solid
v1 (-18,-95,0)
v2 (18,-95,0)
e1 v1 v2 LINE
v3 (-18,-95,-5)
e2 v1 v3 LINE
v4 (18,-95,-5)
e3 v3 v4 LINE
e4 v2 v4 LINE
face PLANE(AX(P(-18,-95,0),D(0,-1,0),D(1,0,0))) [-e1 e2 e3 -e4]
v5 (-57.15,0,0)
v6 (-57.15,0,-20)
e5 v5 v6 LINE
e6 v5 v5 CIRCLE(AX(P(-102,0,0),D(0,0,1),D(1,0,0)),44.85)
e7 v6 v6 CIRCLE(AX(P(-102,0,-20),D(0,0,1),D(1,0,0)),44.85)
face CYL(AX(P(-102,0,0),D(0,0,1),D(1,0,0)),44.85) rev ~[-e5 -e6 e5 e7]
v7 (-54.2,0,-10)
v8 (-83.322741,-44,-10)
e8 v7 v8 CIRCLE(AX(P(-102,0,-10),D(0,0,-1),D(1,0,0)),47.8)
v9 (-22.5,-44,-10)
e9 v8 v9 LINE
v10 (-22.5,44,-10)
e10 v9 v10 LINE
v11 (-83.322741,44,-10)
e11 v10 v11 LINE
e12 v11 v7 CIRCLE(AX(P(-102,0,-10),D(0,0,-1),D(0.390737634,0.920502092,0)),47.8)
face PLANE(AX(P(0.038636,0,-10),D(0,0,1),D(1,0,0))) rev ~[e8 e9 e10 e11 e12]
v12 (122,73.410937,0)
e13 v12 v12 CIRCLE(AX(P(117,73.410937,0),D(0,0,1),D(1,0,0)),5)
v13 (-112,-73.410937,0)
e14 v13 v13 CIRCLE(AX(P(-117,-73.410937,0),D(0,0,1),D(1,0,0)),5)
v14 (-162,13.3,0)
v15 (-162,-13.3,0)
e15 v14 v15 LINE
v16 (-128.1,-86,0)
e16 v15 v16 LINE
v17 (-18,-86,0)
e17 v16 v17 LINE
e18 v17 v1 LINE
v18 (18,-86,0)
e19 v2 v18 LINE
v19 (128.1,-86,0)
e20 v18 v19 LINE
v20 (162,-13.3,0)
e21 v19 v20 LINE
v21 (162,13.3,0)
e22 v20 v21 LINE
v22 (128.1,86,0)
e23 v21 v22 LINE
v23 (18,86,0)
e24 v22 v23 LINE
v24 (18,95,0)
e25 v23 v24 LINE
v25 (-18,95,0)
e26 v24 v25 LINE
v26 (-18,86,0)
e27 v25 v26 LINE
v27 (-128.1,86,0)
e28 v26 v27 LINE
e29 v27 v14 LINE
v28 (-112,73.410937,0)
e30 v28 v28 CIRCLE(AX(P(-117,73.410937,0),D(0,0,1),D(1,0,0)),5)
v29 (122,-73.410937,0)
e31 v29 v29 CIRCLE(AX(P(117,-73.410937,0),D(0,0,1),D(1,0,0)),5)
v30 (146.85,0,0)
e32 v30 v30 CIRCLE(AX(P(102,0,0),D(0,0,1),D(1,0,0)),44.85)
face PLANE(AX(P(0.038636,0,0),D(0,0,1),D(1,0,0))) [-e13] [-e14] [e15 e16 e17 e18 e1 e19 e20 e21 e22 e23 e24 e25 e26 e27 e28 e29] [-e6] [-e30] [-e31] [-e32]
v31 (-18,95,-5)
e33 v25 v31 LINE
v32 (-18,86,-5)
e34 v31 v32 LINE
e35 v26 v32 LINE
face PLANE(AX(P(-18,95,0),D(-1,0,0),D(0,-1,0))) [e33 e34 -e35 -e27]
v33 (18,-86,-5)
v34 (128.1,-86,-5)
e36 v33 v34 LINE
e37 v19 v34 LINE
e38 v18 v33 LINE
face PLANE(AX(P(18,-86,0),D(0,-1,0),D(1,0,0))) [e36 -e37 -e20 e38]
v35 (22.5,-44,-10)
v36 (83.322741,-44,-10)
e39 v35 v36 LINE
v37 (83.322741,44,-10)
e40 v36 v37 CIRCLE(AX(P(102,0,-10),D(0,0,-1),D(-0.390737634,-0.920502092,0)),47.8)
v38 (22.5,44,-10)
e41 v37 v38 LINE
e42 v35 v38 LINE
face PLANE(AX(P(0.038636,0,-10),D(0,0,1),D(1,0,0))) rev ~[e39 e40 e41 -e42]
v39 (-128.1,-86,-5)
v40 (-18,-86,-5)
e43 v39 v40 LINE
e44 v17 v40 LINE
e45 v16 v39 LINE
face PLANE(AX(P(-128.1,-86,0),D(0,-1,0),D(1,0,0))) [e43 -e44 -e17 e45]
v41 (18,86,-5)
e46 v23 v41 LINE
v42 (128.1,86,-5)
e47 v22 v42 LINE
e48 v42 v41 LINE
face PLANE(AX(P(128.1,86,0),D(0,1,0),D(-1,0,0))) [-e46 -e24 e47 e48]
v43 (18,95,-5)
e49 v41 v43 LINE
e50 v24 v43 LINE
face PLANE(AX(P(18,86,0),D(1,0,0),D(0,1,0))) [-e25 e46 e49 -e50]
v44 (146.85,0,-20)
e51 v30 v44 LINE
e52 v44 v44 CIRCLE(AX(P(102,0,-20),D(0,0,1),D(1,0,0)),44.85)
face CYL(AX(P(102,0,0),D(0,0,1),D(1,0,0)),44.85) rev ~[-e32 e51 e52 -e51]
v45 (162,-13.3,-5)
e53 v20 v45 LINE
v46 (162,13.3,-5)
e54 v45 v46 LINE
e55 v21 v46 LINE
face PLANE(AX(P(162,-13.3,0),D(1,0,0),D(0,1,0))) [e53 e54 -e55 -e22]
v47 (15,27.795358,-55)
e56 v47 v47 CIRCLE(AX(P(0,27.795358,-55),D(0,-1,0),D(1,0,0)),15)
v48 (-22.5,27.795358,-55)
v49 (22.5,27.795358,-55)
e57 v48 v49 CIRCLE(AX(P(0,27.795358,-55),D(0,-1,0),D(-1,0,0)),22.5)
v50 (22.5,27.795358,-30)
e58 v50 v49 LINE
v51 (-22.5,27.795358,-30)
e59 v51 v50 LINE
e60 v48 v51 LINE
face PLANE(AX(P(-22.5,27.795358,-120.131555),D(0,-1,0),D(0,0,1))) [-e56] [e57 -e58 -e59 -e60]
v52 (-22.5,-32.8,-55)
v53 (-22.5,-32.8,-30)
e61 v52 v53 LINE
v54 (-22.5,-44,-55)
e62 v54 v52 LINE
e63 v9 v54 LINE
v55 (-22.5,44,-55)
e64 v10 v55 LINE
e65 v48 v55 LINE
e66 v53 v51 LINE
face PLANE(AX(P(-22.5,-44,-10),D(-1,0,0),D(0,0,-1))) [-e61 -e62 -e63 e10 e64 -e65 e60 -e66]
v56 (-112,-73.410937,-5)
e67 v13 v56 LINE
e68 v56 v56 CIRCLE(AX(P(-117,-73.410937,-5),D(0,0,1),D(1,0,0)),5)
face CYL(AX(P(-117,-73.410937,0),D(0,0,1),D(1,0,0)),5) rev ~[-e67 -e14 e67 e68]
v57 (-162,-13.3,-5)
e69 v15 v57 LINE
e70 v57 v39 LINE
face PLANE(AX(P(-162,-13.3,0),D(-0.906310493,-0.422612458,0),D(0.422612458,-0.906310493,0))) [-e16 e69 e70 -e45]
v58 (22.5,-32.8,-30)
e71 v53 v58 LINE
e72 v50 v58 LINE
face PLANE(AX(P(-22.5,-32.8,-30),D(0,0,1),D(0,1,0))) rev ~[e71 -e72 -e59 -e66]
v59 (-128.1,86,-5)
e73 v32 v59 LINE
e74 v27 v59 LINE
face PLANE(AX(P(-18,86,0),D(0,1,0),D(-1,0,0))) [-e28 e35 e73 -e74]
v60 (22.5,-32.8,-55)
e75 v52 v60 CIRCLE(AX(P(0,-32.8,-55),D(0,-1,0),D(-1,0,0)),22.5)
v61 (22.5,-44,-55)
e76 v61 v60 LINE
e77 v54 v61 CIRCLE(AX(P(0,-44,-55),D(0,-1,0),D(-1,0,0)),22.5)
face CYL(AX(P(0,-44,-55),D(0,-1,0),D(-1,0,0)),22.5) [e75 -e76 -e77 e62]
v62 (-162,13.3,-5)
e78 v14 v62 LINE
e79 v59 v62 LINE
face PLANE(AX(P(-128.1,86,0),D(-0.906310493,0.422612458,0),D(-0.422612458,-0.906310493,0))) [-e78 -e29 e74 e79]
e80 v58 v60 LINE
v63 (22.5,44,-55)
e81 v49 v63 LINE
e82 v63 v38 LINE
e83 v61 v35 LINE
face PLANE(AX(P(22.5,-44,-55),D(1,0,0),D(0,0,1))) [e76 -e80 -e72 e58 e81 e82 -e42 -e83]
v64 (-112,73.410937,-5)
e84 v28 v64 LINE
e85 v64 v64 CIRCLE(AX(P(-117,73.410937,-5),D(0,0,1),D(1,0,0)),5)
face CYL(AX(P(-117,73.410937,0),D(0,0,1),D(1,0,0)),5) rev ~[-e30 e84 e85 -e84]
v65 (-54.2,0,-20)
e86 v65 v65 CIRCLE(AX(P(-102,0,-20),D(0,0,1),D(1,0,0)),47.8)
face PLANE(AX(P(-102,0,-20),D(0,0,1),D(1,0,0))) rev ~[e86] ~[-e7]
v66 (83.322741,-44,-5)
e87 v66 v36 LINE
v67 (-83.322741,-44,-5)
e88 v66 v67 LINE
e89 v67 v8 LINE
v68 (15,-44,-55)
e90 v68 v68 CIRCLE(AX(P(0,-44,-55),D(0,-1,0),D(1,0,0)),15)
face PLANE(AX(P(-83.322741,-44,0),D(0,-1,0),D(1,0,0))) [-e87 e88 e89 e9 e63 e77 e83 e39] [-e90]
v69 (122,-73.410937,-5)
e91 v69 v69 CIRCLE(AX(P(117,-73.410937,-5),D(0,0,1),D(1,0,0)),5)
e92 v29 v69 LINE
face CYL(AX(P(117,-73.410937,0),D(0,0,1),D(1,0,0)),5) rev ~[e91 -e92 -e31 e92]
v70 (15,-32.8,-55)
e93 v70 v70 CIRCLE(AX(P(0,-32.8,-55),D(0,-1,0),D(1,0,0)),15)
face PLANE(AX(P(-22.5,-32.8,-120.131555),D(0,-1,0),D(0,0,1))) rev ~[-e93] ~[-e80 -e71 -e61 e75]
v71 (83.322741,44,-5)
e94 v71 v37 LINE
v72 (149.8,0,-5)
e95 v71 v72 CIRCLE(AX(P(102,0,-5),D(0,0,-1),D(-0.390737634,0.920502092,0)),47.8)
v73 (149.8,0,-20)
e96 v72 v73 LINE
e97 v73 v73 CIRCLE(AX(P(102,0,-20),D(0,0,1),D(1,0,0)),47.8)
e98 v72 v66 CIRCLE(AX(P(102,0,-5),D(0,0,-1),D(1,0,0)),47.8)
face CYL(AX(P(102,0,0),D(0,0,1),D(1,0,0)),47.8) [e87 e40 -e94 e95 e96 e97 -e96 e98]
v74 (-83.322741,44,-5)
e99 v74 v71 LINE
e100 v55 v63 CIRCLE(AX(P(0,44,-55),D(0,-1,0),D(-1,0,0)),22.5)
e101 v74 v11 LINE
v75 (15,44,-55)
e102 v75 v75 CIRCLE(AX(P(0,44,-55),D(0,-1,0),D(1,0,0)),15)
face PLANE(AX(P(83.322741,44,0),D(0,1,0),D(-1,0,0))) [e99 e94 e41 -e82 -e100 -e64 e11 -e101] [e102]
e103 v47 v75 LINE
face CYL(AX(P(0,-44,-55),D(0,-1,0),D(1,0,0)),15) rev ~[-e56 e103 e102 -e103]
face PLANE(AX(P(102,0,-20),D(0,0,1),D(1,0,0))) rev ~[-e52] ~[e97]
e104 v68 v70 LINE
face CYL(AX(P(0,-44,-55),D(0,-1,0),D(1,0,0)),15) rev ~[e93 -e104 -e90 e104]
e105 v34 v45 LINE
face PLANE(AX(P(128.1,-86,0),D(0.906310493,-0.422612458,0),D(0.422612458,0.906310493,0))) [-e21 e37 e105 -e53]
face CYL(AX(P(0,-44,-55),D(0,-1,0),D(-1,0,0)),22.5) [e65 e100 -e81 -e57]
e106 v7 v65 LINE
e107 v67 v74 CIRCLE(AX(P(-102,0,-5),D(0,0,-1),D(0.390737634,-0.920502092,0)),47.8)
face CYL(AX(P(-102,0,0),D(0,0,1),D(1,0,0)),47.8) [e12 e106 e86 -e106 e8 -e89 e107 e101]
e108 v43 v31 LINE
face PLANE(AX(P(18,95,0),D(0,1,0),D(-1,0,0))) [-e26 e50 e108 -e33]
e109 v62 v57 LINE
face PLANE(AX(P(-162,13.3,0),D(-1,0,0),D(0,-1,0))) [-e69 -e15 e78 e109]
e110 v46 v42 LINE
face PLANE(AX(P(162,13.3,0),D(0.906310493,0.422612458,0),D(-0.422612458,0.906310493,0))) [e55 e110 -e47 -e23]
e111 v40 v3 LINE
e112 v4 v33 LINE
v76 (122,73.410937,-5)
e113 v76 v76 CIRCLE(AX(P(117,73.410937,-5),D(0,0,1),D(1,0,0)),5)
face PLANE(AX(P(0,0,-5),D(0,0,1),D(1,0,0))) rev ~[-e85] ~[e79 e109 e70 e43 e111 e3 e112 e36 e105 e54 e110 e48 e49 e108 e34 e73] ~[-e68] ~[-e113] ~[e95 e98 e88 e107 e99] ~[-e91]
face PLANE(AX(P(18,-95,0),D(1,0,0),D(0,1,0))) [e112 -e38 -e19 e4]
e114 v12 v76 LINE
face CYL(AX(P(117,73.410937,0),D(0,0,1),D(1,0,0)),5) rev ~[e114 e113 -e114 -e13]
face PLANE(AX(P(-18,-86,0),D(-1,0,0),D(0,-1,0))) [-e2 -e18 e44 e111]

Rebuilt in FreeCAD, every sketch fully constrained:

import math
import FreeCAD as App
import Part
import Sketcher

V = App.Vector
Q = App.Units.Quantity


def add_polygon(sketch, points):
    """Adds a closed chain of lines whose ends are joined by coincident constraints."""
    first, n = sketch.GeometryCount, len(points)
    for a, b in zip(points, points[1:] + points[:1]):
        sketch.addGeometry(Part.LineSegment(App.Vector(*a, 0), App.Vector(*b, 0)), False)
    for i in range(n):
        sketch.addConstraint(Sketcher.Constraint("Coincident", first + i, 2, first + (i + 1) % n, 1))

doc = App.newDocument("Part")
body = doc.addObject("PartDesign::Body", "Body")

sketch1 = body.newObject("Sketcher::SketchObject", "Sketch")
sketch1.AttachmentSupport = (doc.getObject("XY_Plane"), [""])
sketch1.MapMode = "FlatFace"
add_polygon(sketch1, [(-18, 86), (-128, 86), (-162, 13), (-162, -13), (-128, -86), (-18, -86), (-18, -95), (18, -95), (18, -86), (128, -86), (162, -13), (162, 13), (128, 86), (18, 86), (18, 95), (-18, 95)])
sketch1.addGeometry(Part.Circle(V(-117, -73, 0), V(0, 0, 1), 5), False)
sketch1.addGeometry(Part.Circle(V(117, -73, 0), V(0, 0, 1), 5), False)
sketch1.addGeometry(Part.Circle(V(-117, 73, 0), V(0, 0, 1), 5), False)
sketch1.addGeometry(Part.LineSegment(V(83, -44, 0), V(-83, -44, 0)), False)
sketch1.addGeometry(Part.ArcOfCircle(Part.Circle(V(-102, 0, 0), V(0, 0, 1), 48), math.radians(67), math.radians(293)), False)
sketch1.addGeometry(Part.LineSegment(V(-83, 44, 0), V(83, 44, 0)), False)
sketch1.addGeometry(Part.ArcOfCircle(Part.Circle(V(102, 0, 0), V(0, 0, 1), 48), math.radians(0), math.radians(113)), False)
sketch1.addGeometry(Part.ArcOfCircle(Part.Circle(V(102, 0, 0), V(0, 0, 1), 48), math.radians(-113), math.radians(0)), False)
sketch1.addGeometry(Part.Circle(V(117, 73, 0), V(0, 0, 1), 5), False)
sketch1.addConstraint(Sketcher.Constraint("Coincident", 19, 2, 20, 2))
sketch1.addConstraint(Sketcher.Constraint("Coincident", 20, 1, 21, 1))
sketch1.addConstraint(Sketcher.Constraint("Coincident", 21, 2, 22, 2))
sketch1.addConstraint(Sketcher.Constraint("Tangent", 22, 1, 23, 2))
sketch1.addConstraint(Sketcher.Constraint("Coincident", 23, 1, 19, 1))
sketch1.addConstraint(Sketcher.Constraint("Horizontal", 0))
sketch1.addConstraint(Sketcher.Constraint("Vertical", 2))
sketch1.addConstraint(Sketcher.Constraint("Horizontal", 4))
sketch1.addConstraint(Sketcher.Constraint("Vertical", 5))
sketch1.addConstraint(Sketcher.Constraint("Horizontal", 6))
sketch1.addConstraint(Sketcher.Constraint("Vertical", 7))
sketch1.addConstraint(Sketcher.Constraint("Horizontal", 8))
sketch1.addConstraint(Sketcher.Constraint("Vertical", 10))
sketch1.addConstraint(Sketcher.Constraint("Horizontal", 12))
sketch1.addConstraint(Sketcher.Constraint("Vertical", 13))
sketch1.addConstraint(Sketcher.Constraint("Horizontal", 14))
sketch1.addConstraint(Sketcher.Constraint("Vertical", 15))
sketch1.addConstraint(Sketcher.Constraint("Horizontal", 19))
sketch1.addConstraint(Sketcher.Constraint("Horizontal", 21))
sketch1.addConstraint(Sketcher.Constraint("Equal", 16, 17))
sketch1.addConstraint(Sketcher.Constraint("Equal", 17, 18))
sketch1.addConstraint(Sketcher.Constraint("Equal", 20, 22))
sketch1.addConstraint(Sketcher.Constraint("Equal", 22, 23))
sketch1.addConstraint(Sketcher.Constraint("Equal", 18, 24))
sketch1.addConstraint(Sketcher.Constraint("Symmetric", 17, 3, 18, 3, -1, 1))
sketch1.addConstraint(Sketcher.Constraint("Symmetric", 20, 3, 22, 3, -1, 1))
sketch1.addConstraint(Sketcher.Constraint("Symmetric", 16, 3, 24, 3, -1, 1))
sketch1.addConstraint(Sketcher.Constraint("Symmetric", 0, 2, 8, 2, -1, 1))
sketch1.addConstraint(Sketcher.Constraint("Symmetric", 1, 2, 9, 2, -1, 1))
sketch1.addConstraint(Sketcher.Constraint("Symmetric", 3, 2, 11, 2, -1, 1))
sketch1.addConstraint(Sketcher.Constraint("Symmetric", 5, 2, 13, 2, -1, 1))
sketch1.addConstraint(Sketcher.Constraint("Symmetric", 16, 3, 17, 3, -2))
sketch1.addConstraint(Sketcher.Constraint("Symmetric", 4, 2, 7, 2, -2))
sketch1.addConstraint(Sketcher.Constraint("Symmetric", 19, 2, 20, 1, -1))
sketch1.addConstraint(Sketcher.Constraint("PointOnObject", 22, 1, -1))
sketch1.addConstraint(Sketcher.Constraint("Parallel", 3, 11))
sketch1.addConstraint(Sketcher.Constraint("Horizontal", 2, 2, 9, 2))
sketch1.addConstraint(Sketcher.Constraint("Vertical", 0, 2, 3, 2))
sketch1.addConstraint(Sketcher.Constraint("Vertical", 5, 2, 14, 2))
sketch1.addConstraint(Sketcher.Constraint("Diameter", 16, Q("10 mm")))
sketch1.addConstraint(Sketcher.Constraint("Radius", 20, Q("47.8 mm")))
sketch1.addConstraint(Sketcher.Constraint("DistanceX", 6, 1, 6, 2, Q("36 mm")))
sketch1.addConstraint(Sketcher.Constraint("DistanceY", 5, 2, 5, 1, Q("9 mm")))
sketch1.addConstraint(Sketcher.Constraint("DistanceX", 0, 2, 0, 1, Q("110.1 mm")))
sketch1.addConstraint(Sketcher.Constraint("DistanceY", 2, 2, 2, 1, Q("26.6 mm")))
sketch1.addConstraint(Sketcher.Constraint("DistanceX", 16, 3, -1, 1, Q("117 mm")))
sketch1.addConstraint(Sketcher.Constraint("DistanceX", 20, 3, -1, 1, Q("102 mm")))
sketch1.addConstraint(Sketcher.Constraint("DistanceY", -1, 1, 0, 2, Q("86 mm")))
sketch1.addConstraint(Sketcher.Constraint("DistanceX", 1, 2, -1, 1, Q("162 mm")))
sketch1.addConstraint(Sketcher.Constraint("DistanceY", 19, 2, -1, 1, Q("44 mm")))
sketch1.addConstraint(Sketcher.Constraint("DistanceY", 16, 3, -1, 1, Q("73.410937 mm")))
pad1 = body.newObject("PartDesign::Pad", "Pad")
pad1.Profile = sketch1
pad1.Length = 5
pad1.Reversed = True

sketch2 = body.newObject("Sketcher::SketchObject", "Sketch001")
sketch2.AttachmentSupport = (doc.getObject("XY_Plane"), [""])
sketch2.MapMode = "FlatFace"
sketch2.addGeometry(Part.LineSegment(V(83, 44, 0), V(-83, 44, 0)), False)
sketch2.addGeometry(Part.ArcOfCircle(Part.Circle(V(-102, 0, 0), V(0, 0, 1), 48), math.radians(0), math.radians(67)), False)
sketch2.addGeometry(Part.ArcOfCircle(Part.Circle(V(-102, 0, 0), V(0, 0, 1), 48), math.radians(-67), math.radians(0)), False)
sketch2.addGeometry(Part.LineSegment(V(-83, -44, 0), V(83, -44, 0)), False)
sketch2.addGeometry(Part.ArcOfCircle(Part.Circle(V(102, 0, 0), V(0, 0, 1), 48), math.radians(113), math.radians(247)), False)
sketch2.addConstraint(Sketcher.Constraint("Coincident", 0, 2, 1, 2))
sketch2.addConstraint(Sketcher.Constraint("Tangent", 1, 1, 2, 2))
sketch2.addConstraint(Sketcher.Constraint("Coincident", 2, 1, 3, 1))
sketch2.addConstraint(Sketcher.Constraint("Coincident", 3, 2, 4, 2))
sketch2.addConstraint(Sketcher.Constraint("Coincident", 4, 1, 0, 1))
sketch2.addConstraint(Sketcher.Constraint("Horizontal", 0))
sketch2.addConstraint(Sketcher.Constraint("Horizontal", 3))
sketch2.addConstraint(Sketcher.Constraint("Equal", 1, 2))
sketch2.addConstraint(Sketcher.Constraint("Equal", 2, 4))
sketch2.addConstraint(Sketcher.Constraint("Symmetric", 1, 3, 4, 3, -1, 1))
sketch2.addConstraint(Sketcher.Constraint("Symmetric", 0, 2, 2, 1, -1))
sketch2.addConstraint(Sketcher.Constraint("PointOnObject", 1, 1, -1))
sketch2.addConstraint(Sketcher.Constraint("Radius", 1, Q("47.8 mm")))
sketch2.addConstraint(Sketcher.Constraint("DistanceX", 1, 3, -1, 1, Q("102 mm")))
sketch2.addConstraint(Sketcher.Constraint("DistanceY", -1, 1, 0, 2, Q("44 mm")))
pad2 = body.newObject("PartDesign::Pad", "Pad001")
pad2.Profile = sketch2
pad2.Length = 10
pad2.Reversed = True

sketch3 = body.newObject("Sketcher::SketchObject", "Sketch002")
sketch3.AttachmentSupport = (doc.getObject("XY_Plane"), [""])
sketch3.MapMode = "FlatFace"
sketch3.addGeometry(Part.Circle(V(102, 0, 0), V(0, 0, 1), 48), False)
sketch3.addGeometry(Part.Circle(V(102, 0, 0), V(0, 0, 1), 45), False)
sketch3.addGeometry(Part.Circle(V(-102, 0, 0), V(0, 0, 1), 48), False)
sketch3.addGeometry(Part.Circle(V(-102, 0, 0), V(0, 0, 1), 45), False)
sketch3.addConstraint(Sketcher.Constraint("Coincident", 1, 3, 0, 3))
sketch3.addConstraint(Sketcher.Constraint("Coincident", 3, 3, 2, 3))
sketch3.addConstraint(Sketcher.Constraint("Equal", 0, 2))
sketch3.addConstraint(Sketcher.Constraint("Equal", 1, 3))
sketch3.addConstraint(Sketcher.Constraint("Symmetric", 0, 3, 2, 3, -1, 1))
sketch3.addConstraint(Sketcher.Constraint("PointOnObject", 0, 3, -1))
sketch3.addConstraint(Sketcher.Constraint("Diameter", 0, Q("95.6 mm")))
sketch3.addConstraint(Sketcher.Constraint("Diameter", 1, Q("89.7 mm")))
sketch3.addConstraint(Sketcher.Constraint("DistanceX", -1, 1, 0, 3, Q("102 mm")))
pad3 = body.newObject("PartDesign::Pad", "Pad002")
pad3.Profile = sketch3
pad3.Length = 20
pad3.Reversed = True

sketch4 = body.newObject("Sketcher::SketchObject", "Sketch003")
sketch4.AttachmentSupport = (doc.getObject("XZ_Plane"), [""])
sketch4.MapMode = "FlatFace"
sketch4.AttachmentOffset = App.Placement(V(0, 0, 44), App.Rotation())
sketch4.addGeometry(Part.LineSegment(V(22, -55, 0), V(22, -10, 0)), False)
sketch4.addGeometry(Part.LineSegment(V(22, -10, 0), V(-22, -10, 0)), False)
sketch4.addGeometry(Part.LineSegment(V(-22, -10, 0), V(-22, -55, 0)), False)
sketch4.addGeometry(Part.ArcOfCircle(Part.Circle(V(0, -55, 0), V(0, 0, 1), 22), math.radians(180), math.radians(360)), False)
sketch4.addGeometry(Part.Circle(V(0, -55, 0), V(0, 0, 1), 15), False)
sketch4.addConstraint(Sketcher.Constraint("Coincident", 0, 2, 1, 1))
sketch4.addConstraint(Sketcher.Constraint("Coincident", 1, 2, 2, 1))
sketch4.addConstraint(Sketcher.Constraint("Tangent", 2, 2, 3, 1))
sketch4.addConstraint(Sketcher.Constraint("Tangent", 3, 2, 0, 1))
sketch4.addConstraint(Sketcher.Constraint("Vertical", 0))
sketch4.addConstraint(Sketcher.Constraint("Horizontal", 1))
sketch4.addConstraint(Sketcher.Constraint("Vertical", 2))
sketch4.addConstraint(Sketcher.Constraint("Coincident", 4, 3, 3, 3))
sketch4.addConstraint(Sketcher.Constraint("PointOnObject", 3, 3, -2))
sketch4.addConstraint(Sketcher.Constraint("Equal", 1, 0))
sketch4.addConstraint(Sketcher.Constraint("Diameter", 4, Q("30 mm")))
sketch4.addConstraint(Sketcher.Constraint("Radius", 3, Q("22.5 mm")))
sketch4.addConstraint(Sketcher.Constraint("DistanceY", 3, 3, -1, 1, Q("55 mm")))
pad4 = body.newObject("PartDesign::Pad", "Pad003")
pad4.Profile = sketch4
pad4.Length = 88
pad4.Reversed = True

sketch5 = body.newObject("Sketcher::SketchObject", "Sketch004")
sketch5.AttachmentSupport = (doc.getObject("YZ_Plane"), [""])
sketch5.MapMode = "FlatFace"
sketch5.AttachmentOffset = App.Placement(V(0, 0, -22.5), App.Rotation())
add_polygon(sketch5, [(28, -120), (-33, -120), (-33, -30), (28, -30)])
sketch5.addConstraint(Sketcher.Constraint("Horizontal", 0))
sketch5.addConstraint(Sketcher.Constraint("Vertical", 1))
sketch5.addConstraint(Sketcher.Constraint("Horizontal", 2))
sketch5.addConstraint(Sketcher.Constraint("Vertical", 3))
sketch5.addConstraint(Sketcher.Constraint("DistanceY", 1, 2, -1, 1, Q("30 mm")))
sketch5.addConstraint(Sketcher.Constraint("DistanceX", 0, 2, -1, 1, Q("32.8 mm")))
sketch5.addConstraint(Sketcher.Constraint("DistanceX", 0, 2, 0, 1, Q("60.595358 mm")))
sketch5.addConstraint(Sketcher.Constraint("DistanceY", 1, 1, 1, 2, Q("90.131555 mm")))
pocket1 = body.newObject("PartDesign::Pocket", "Pocket")
pocket1.Profile = sketch5
pocket1.Length = 57
pocket1.Reversed = True

doc.recompute()
